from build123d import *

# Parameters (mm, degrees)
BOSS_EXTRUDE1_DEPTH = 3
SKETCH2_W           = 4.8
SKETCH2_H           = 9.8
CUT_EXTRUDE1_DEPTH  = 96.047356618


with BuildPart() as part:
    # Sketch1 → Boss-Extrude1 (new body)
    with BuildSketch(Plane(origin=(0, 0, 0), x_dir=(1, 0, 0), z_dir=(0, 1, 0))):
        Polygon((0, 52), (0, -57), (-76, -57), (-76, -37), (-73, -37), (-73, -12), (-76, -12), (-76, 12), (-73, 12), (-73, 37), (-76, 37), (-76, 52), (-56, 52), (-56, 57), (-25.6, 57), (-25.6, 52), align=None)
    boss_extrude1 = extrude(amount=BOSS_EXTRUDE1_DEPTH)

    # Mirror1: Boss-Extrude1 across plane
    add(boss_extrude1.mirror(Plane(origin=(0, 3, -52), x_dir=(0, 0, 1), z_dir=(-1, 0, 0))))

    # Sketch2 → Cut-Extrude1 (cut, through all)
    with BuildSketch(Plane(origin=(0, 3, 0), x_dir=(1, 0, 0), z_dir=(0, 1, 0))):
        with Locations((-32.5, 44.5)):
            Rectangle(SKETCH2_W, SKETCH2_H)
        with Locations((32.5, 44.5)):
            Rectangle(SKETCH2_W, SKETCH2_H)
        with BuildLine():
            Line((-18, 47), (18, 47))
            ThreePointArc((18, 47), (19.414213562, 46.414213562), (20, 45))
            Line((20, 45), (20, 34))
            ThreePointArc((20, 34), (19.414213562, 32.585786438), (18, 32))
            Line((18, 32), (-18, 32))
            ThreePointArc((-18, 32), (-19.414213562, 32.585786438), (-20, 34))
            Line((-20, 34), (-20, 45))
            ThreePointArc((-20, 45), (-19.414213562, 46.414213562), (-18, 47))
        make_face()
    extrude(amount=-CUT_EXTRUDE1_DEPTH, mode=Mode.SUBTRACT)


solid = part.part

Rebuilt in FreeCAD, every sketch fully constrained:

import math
import FreeCAD as App
import Part
import Sketcher
from FreeCAD import Vector

doc = App.newDocument("Part")
body = doc.addObject("PartDesign::Body", "Body")

# Sketch on XZ plane
sketch1 = body.newObject("Sketcher::SketchObject", "Sketch")
sketch1.AttachmentSupport = (doc.getObject("XZ_Plane"), [""])
sketch1.MapMode = "FlatFace"
sketch1.addGeometry([
    Part.LineSegment(Vector(0, 57, 0), Vector(0, -52, 0)),  # 0
    Part.LineSegment(Vector(0, -52, 0), Vector(-25.6, -52, 0)),  # 1
    Part.LineSegment(Vector(-25.6, -52, 0), Vector(-25.6, -57, 0)),  # 2
    Part.LineSegment(Vector(-25.6, -57, 0), Vector(-56, -57, 0)),  # 3
    Part.LineSegment(Vector(-56, -57, 0), Vector(-56, -52, 0)),  # 4
    Part.LineSegment(Vector(-56, -52, 0), Vector(-76, -52, 0)),  # 5
    Part.LineSegment(Vector(-76, -52, 0), Vector(-76, -37, 0)),  # 6
    Part.LineSegment(Vector(-76, -37, 0), Vector(-73, -37, 0)),  # 7
    Part.LineSegment(Vector(-73, -37, 0), Vector(-73, -12, 0)),  # 8
    Part.LineSegment(Vector(-73, -12, 0), Vector(-76, -12, 0)),  # 9
    Part.LineSegment(Vector(-76, -12, 0), Vector(-76, 12, 0)),  # 10
    Part.LineSegment(Vector(-76, 12, 0), Vector(-73, 12, 0)),  # 11
    Part.LineSegment(Vector(-73, 12, 0), Vector(-73, 37, 0)),  # 12
    Part.LineSegment(Vector(-73, 37, 0), Vector(-76, 37, 0)),  # 13
    Part.LineSegment(Vector(-76, 37, 0), Vector(-76, 57, 0)),  # 14
    Part.LineSegment(Vector(-76, 57, 0), Vector(0, 57, 0)),  # 15
], False)
sketch1.addConstraint([
    Sketcher.Constraint("Coincident", 0, 2, 1, 1),
    Sketcher.Constraint("Coincident", 1, 2, 2, 1),
    Sketcher.Constraint("Coincident", 2, 2, 3, 1),
    Sketcher.Constraint("Coincident", 3, 2, 4, 1),
    Sketcher.Constraint("Coincident", 4, 2, 5, 1),
    Sketcher.Constraint("Coincident", 5, 2, 6, 1),
    Sketcher.Constraint("Coincident", 6, 2, 7, 1),
    Sketcher.Constraint("Coincident", 7, 2, 8, 1),
    Sketcher.Constraint("Coincident", 8, 2, 9, 1),
    Sketcher.Constraint("Coincident", 9, 2, 10, 1),
    Sketcher.Constraint("Coincident", 10, 2, 11, 1),
    Sketcher.Constraint("Coincident", 11, 2, 12, 1),
    Sketcher.Constraint("Coincident", 12, 2, 13, 1),
    Sketcher.Constraint("Coincident", 13, 2, 14, 1),
    Sketcher.Constraint("Coincident", 14, 2, 15, 1),
    Sketcher.Constraint("Coincident", 15, 2, 0, 1),
    Sketcher.Constraint("Vertical", 0),
    Sketcher.Constraint("Horizontal", 1),
    Sketcher.Constraint("Vertical", 2),
    Sketcher.Constraint("Horizontal", 3),
    Sketcher.Constraint("Vertical", 4),
    Sketcher.Constraint("Horizontal", 5),
    Sketcher.Constraint("Vertical", 6),
    Sketcher.Constraint("Horizontal", 7),
    Sketcher.Constraint("Vertical", 8),
    Sketcher.Constraint("Horizontal", 9),
    Sketcher.Constraint("Vertical", 10),
    Sketcher.Constraint("Horizontal", 11),
    Sketcher.Constraint("Vertical", 12),
    Sketcher.Constraint("Horizontal", 13),
    Sketcher.Constraint("Vertical", 14),
    Sketcher.Constraint("Horizontal", 15),
    Sketcher.Constraint("Symmetric", 8, 2, 11, 2, -1),
    Sketcher.Constraint("Symmetric", 6, 2, 13, 2, -1),
    Sketcher.Constraint("PointOnObject", 0, 2, -2),
    Sketcher.Constraint("Horizontal", 1, 2, 4, 2),
    Sketcher.Constraint("Vertical", 6, 2, 9, 2),
    Sketcher.Constraint("Equal", 5, 14),
    Sketcher.Constraint("DistanceX", 5, 2, 5, 1, 20.0),
    Sketcher.Constraint("DistanceX", 7, 1, 7, 2, 3.0),
    Sketcher.Constraint("DistanceX", 15, 1, 15, 2, 76.0),
    Sketcher.Constraint("DistanceY", 0, 2, 0, 1, 109.0),
    Sketcher.Constraint("DistanceY", 2, 2, 2, 1, 5.0),
    Sketcher.Constraint("DistanceY", 6, 1, 6, 2, 15.0),
    Sketcher.Constraint("DistanceY", 8, 1, 8, 2, 25.0),
    Sketcher.Constraint("DistanceX", 1, 2, 1, 1, 25.6),
])
pad1 = body.newObject("PartDesign::Pad", "Pad")
pad1.Profile = sketch1
pad1.Length = 3
pad1.Reversed = True
doc.recompute()

mirrored = body.newObject("PartDesign::Mirrored", "Mirrored")
mirrored.Originals = [pad1]
mirrored.MirrorPlane = (doc.getObject("YZ_Plane"), [""])
body.Tip = mirrored

# Sketch on XZ plane
sketch2 = body.newObject("Sketcher::SketchObject", "Sketch001")
sketch2.AttachmentSupport = (doc.getObject("XZ_Plane"), [""])
sketch2.MapMode = "FlatFace"
sketch2.AttachmentOffset = App.Placement(Vector(0, 0, -3), App.Rotation())
sketch2.addGeometry([
    Part.LineSegment(Vector(-34.9, -49.4, 0), Vector(-34.9, -39.6, 0)),  # 0
    Part.LineSegment(Vector(-34.9, -39.6, 0), Vector(-30.1, -39.6, 0)),  # 1
    Part.LineSegment(Vector(-30.1, -39.6, 0), Vector(-30.1, -49.4, 0)),  # 2
    Part.LineSegment(Vector(-30.1, -49.4, 0), Vector(-34.9, -49.4, 0)),  # 3
    Part.LineSegment(Vector(30.1, -49.4, 0), Vector(30.1, -39.6, 0)),  # 4
    Part.LineSegment(Vector(30.1, -39.6, 0), Vector(34.9, -39.6, 0)),  # 5
    Part.LineSegment(Vector(34.9, -39.6, 0), Vector(34.9, -49.4, 0)),  # 6
    Part.LineSegment(Vector(34.9, -49.4, 0), Vector(30.1, -49.4, 0)),  # 7
    Part.LineSegment(Vector(18, -47, 0), Vector(-18, -47, 0)),  # 8
    Part.ArcOfCircle(Part.Circle(Vector(-18, -45, 0), Vector(0, 0, 1), 2), math.radians(-180), math.radians(-90)),  # 9
    Part.LineSegment(Vector(-20, -45, 0), Vector(-20, -34, 0)),  # 10
    Part.ArcOfCircle(Part.Circle(Vector(-18, -34, 0), Vector(0, 0, 1), 2), math.radians(90), math.radians(180)),  # 11
    Part.LineSegment(Vector(-18, -32, 0), Vector(18, -32, 0)),  # 12
    Part.ArcOfCircle(Part.Circle(Vector(18, -34, 0), Vector(0, 0, 1), 2), math.radians(0), math.radians(90)),  # 13
    Part.LineSegment(Vector(20, -34, 0), Vector(20, -45, 0)),  # 14
    Part.ArcOfCircle(Part.Circle(Vector(18, -45, 0), Vector(0, 0, 1), 2), math.radians(-90), math.radians(0)),  # 15
], False)
sketch2.addConstraint([
    Sketcher.Constraint("Coincident", 0, 2, 1, 1),
    Sketcher.Constraint("Coincident", 1, 2, 2, 1),
    Sketcher.Constraint("Coincident", 2, 2, 3, 1),
    Sketcher.Constraint("Coincident", 3, 2, 0, 1),
    Sketcher.Constraint("Coincident", 4, 2, 5, 1),
    Sketcher.Constraint("Coincident", 5, 2, 6, 1),
    Sketcher.Constraint("Coincident", 6, 2, 7, 1),
    Sketcher.Constraint("Coincident", 7, 2, 4, 1),
    Sketcher.Constraint("Tangent", 8, 2, 9, 2),
    Sketcher.Constraint("Tangent", 9, 1, 10, 1),
    Sketcher.Constraint("Tangent", 10, 2, 11, 2),
    Sketcher.Constraint("Tangent", 11, 1, 12, 1),
    Sketcher.Constraint("Tangent", 12, 2, 13, 2),
    Sketcher.Constraint("Tangent", 13, 1, 14, 1),
    Sketcher.Constraint("Tangent", 14, 2, 15, 2),
    Sketcher.Constraint("Tangent", 15, 1, 8, 1),
    Sketcher.Constraint("Vertical", 0),
    Sketcher.Constraint("Horizontal", 1),
    Sketcher.Constraint("Vertical", 2),
    Sketcher.Constraint("Horizontal", 3),
    Sketcher.Constraint("Vertical", 4),
    Sketcher.Constraint("Horizontal", 5),
    Sketcher.Constraint("Vertical", 6),
    Sketcher.Constraint("Horizontal", 7),
    Sketcher.Constraint("Horizontal", 8),
    Sketcher.Constraint("Vertical", 10),
    Sketcher.Constraint("Horizontal", 12),
    Sketcher.Constraint("Vertical", 14),
    Sketcher.Constraint("Equal", 9, 11),
    Sketcher.Constraint("Equal", 11, 13),
    Sketcher.Constraint("Equal", 13, 15),
    Sketcher.Constraint("Symmetric", 1, 2, 4, 2, -2),
    Sketcher.Constraint("Symmetric", 3, 2, 6, 2, -2),
    Sketcher.Constraint("Radius", 9, 2.0),
    Sketcher.Constraint("DistanceX", 8, 2, 8, 1, 36.0),
    Sketcher.Constraint("DistanceY", 10, 1, 10, 2, 11.0),
    Sketcher.Constraint("DistanceX", 1, 1, 1, 2, 4.8),
    Sketcher.Constraint("DistanceY", 0, 1, 0, 2, 9.8),
    Sketcher.Constraint("DistanceX", 9, 3, -1, 1, 18.0),
    Sketcher.Constraint("DistanceY", 9, 3, -1, 1, 45.0),
    Sketcher.Constraint("DistanceX", 0, 2, -1, 1, 34.9),
    Sketcher.Constraint("DistanceY", 0, 2, -1, 1, 39.6),
])
pocket1 = body.newObject("PartDesign::Pocket", "Pocket")
pocket1.Profile = sketch2
pocket1.Type = "ThroughAll"
pocket1.Reversed = True

doc.recompute()
